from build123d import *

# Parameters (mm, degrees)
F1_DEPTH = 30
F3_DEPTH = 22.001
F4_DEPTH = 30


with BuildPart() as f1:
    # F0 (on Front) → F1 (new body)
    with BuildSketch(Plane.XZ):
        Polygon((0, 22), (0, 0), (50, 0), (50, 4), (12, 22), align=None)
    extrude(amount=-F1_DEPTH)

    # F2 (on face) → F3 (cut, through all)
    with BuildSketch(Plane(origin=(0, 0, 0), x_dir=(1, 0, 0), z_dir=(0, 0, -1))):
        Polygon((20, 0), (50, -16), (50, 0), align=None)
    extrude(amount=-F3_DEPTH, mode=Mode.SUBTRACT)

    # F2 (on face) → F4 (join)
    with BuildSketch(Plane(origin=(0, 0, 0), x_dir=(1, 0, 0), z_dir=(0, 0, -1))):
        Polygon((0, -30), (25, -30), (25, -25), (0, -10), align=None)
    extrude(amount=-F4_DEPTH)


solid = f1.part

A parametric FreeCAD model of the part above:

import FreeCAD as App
import Part
import Sketcher
Q = App.Units.Quantity


def add_polygon(sketch, points):
    """Adds a closed chain of lines whose ends are joined by coincident constraints."""
    first, n = sketch.GeometryCount, len(points)
    for a, b in zip(points, points[1:] + points[:1]):
        sketch.addGeometry(Part.LineSegment(App.Vector(*a, 0), App.Vector(*b, 0)), False)
    for i in range(n):
        sketch.addConstraint(Sketcher.Constraint("Coincident", first + i, 2, first + (i + 1) % n, 1))

doc = App.newDocument("Part")
body = doc.addObject("PartDesign::Body", "Body")

sketch1 = doc.addObject("Sketcher::SketchObject", "Sketch")
body.addObject(sketch1)
sketch1.AttachmentSupport = (doc.XZ_Plane, [""])
sketch1.MapMode = "FlatFace"
add_polygon(sketch1, [(0, 22), (0, 0), (50, 0), (50, 4), (12, 22)])
sketch1.addConstraint(Sketcher.Constraint("Vertical", 0))
sketch1.addConstraint(Sketcher.Constraint("Horizontal", 1))
sketch1.addConstraint(Sketcher.Constraint("Vertical", 2))
sketch1.addConstraint(Sketcher.Constraint("Horizontal", 4))
sketch1.addConstraint(Sketcher.Constraint("Coincident", 0, 2, -1, 1))
sketch1.addConstraint(Sketcher.Constraint("DistanceX", 1, 1, 1, 2, Q("50 mm")))
sketch1.addConstraint(Sketcher.Constraint("DistanceX", 4, 2, 4, 1, Q("12 mm")))
sketch1.addConstraint(Sketcher.Constraint("DistanceY", 0, 2, 0, 1, Q("22 mm")))
sketch1.addConstraint(Sketcher.Constraint("DistanceY", 2, 1, 2, 2, Q("4 mm")))
pad1 = doc.addObject("PartDesign::Pad", "Pad")
body.addObject(pad1)
pad1.Profile = sketch1
pad1.Length = 30
pad1.Reversed = True

sketch2 = doc.addObject("Sketcher::SketchObject", "Sketch001")
body.addObject(sketch2)
sketch2.AttachmentSupport = (doc.XY_Plane, [""])
sketch2.MapMode = "FlatFace"
add_polygon(sketch2, [(20, 0), (50, 16), (50, 0)])
sketch2.addConstraint(Sketcher.Constraint("Vertical", 1))
sketch2.addConstraint(Sketcher.Constraint("Horizontal", 2))
sketch2.addConstraint(Sketcher.Constraint("PointOnObject", 1, 2, -1))
sketch2.addConstraint(Sketcher.Constraint("DistanceX", 2, 2, 2, 1, Q("30 mm")))
sketch2.addConstraint(Sketcher.Constraint("DistanceY", 1, 2, 1, 1, Q("16 mm")))
sketch2.addConstraint(Sketcher.Constraint("DistanceX", -1, 1, 0, 2, Q("50 mm")))
pocket1 = doc.addObject("PartDesign::Pocket", "Pocket")
body.addObject(pocket1)
pocket1.Profile = sketch2
pocket1.Type = "ThroughAll"
pocket1.Reversed = True

sketch3 = doc.addObject("Sketcher::SketchObject", "Sketch002")
body.addObject(sketch3)
sketch3.AttachmentSupport = (doc.XY_Plane, [""])
sketch3.MapMode = "FlatFace"
add_polygon(sketch3, [(0, 30), (25, 30), (25, 25), (0, 10)])
sketch3.addConstraint(Sketcher.Constraint("Horizontal", 0))
sketch3.addConstraint(Sketcher.Constraint("Vertical", 1))
sketch3.addConstraint(Sketcher.Constraint("Vertical", 3))
sketch3.addConstraint(Sketcher.Constraint("PointOnObject", 2, 2, -2))
sketch3.addConstraint(Sketcher.Constraint("DistanceX", 0, 1, 0, 2, Q("25 mm")))
sketch3.addConstraint(Sketcher.Constraint("DistanceY", 1, 2, 1, 1, Q("5 mm")))
sketch3.addConstraint(Sketcher.Constraint("DistanceY", 3, 1, 3, 2, Q("20 mm")))
sketch3.addConstraint(Sketcher.Constraint("DistanceY", -1, 1, 0, 2, Q("30 mm")))
pad2 = doc.addObject("PartDesign::Pad", "Pad001")
body.addObject(pad2)
pad2.Profile = sketch3
pad2.Length = 30

doc.recompute()
